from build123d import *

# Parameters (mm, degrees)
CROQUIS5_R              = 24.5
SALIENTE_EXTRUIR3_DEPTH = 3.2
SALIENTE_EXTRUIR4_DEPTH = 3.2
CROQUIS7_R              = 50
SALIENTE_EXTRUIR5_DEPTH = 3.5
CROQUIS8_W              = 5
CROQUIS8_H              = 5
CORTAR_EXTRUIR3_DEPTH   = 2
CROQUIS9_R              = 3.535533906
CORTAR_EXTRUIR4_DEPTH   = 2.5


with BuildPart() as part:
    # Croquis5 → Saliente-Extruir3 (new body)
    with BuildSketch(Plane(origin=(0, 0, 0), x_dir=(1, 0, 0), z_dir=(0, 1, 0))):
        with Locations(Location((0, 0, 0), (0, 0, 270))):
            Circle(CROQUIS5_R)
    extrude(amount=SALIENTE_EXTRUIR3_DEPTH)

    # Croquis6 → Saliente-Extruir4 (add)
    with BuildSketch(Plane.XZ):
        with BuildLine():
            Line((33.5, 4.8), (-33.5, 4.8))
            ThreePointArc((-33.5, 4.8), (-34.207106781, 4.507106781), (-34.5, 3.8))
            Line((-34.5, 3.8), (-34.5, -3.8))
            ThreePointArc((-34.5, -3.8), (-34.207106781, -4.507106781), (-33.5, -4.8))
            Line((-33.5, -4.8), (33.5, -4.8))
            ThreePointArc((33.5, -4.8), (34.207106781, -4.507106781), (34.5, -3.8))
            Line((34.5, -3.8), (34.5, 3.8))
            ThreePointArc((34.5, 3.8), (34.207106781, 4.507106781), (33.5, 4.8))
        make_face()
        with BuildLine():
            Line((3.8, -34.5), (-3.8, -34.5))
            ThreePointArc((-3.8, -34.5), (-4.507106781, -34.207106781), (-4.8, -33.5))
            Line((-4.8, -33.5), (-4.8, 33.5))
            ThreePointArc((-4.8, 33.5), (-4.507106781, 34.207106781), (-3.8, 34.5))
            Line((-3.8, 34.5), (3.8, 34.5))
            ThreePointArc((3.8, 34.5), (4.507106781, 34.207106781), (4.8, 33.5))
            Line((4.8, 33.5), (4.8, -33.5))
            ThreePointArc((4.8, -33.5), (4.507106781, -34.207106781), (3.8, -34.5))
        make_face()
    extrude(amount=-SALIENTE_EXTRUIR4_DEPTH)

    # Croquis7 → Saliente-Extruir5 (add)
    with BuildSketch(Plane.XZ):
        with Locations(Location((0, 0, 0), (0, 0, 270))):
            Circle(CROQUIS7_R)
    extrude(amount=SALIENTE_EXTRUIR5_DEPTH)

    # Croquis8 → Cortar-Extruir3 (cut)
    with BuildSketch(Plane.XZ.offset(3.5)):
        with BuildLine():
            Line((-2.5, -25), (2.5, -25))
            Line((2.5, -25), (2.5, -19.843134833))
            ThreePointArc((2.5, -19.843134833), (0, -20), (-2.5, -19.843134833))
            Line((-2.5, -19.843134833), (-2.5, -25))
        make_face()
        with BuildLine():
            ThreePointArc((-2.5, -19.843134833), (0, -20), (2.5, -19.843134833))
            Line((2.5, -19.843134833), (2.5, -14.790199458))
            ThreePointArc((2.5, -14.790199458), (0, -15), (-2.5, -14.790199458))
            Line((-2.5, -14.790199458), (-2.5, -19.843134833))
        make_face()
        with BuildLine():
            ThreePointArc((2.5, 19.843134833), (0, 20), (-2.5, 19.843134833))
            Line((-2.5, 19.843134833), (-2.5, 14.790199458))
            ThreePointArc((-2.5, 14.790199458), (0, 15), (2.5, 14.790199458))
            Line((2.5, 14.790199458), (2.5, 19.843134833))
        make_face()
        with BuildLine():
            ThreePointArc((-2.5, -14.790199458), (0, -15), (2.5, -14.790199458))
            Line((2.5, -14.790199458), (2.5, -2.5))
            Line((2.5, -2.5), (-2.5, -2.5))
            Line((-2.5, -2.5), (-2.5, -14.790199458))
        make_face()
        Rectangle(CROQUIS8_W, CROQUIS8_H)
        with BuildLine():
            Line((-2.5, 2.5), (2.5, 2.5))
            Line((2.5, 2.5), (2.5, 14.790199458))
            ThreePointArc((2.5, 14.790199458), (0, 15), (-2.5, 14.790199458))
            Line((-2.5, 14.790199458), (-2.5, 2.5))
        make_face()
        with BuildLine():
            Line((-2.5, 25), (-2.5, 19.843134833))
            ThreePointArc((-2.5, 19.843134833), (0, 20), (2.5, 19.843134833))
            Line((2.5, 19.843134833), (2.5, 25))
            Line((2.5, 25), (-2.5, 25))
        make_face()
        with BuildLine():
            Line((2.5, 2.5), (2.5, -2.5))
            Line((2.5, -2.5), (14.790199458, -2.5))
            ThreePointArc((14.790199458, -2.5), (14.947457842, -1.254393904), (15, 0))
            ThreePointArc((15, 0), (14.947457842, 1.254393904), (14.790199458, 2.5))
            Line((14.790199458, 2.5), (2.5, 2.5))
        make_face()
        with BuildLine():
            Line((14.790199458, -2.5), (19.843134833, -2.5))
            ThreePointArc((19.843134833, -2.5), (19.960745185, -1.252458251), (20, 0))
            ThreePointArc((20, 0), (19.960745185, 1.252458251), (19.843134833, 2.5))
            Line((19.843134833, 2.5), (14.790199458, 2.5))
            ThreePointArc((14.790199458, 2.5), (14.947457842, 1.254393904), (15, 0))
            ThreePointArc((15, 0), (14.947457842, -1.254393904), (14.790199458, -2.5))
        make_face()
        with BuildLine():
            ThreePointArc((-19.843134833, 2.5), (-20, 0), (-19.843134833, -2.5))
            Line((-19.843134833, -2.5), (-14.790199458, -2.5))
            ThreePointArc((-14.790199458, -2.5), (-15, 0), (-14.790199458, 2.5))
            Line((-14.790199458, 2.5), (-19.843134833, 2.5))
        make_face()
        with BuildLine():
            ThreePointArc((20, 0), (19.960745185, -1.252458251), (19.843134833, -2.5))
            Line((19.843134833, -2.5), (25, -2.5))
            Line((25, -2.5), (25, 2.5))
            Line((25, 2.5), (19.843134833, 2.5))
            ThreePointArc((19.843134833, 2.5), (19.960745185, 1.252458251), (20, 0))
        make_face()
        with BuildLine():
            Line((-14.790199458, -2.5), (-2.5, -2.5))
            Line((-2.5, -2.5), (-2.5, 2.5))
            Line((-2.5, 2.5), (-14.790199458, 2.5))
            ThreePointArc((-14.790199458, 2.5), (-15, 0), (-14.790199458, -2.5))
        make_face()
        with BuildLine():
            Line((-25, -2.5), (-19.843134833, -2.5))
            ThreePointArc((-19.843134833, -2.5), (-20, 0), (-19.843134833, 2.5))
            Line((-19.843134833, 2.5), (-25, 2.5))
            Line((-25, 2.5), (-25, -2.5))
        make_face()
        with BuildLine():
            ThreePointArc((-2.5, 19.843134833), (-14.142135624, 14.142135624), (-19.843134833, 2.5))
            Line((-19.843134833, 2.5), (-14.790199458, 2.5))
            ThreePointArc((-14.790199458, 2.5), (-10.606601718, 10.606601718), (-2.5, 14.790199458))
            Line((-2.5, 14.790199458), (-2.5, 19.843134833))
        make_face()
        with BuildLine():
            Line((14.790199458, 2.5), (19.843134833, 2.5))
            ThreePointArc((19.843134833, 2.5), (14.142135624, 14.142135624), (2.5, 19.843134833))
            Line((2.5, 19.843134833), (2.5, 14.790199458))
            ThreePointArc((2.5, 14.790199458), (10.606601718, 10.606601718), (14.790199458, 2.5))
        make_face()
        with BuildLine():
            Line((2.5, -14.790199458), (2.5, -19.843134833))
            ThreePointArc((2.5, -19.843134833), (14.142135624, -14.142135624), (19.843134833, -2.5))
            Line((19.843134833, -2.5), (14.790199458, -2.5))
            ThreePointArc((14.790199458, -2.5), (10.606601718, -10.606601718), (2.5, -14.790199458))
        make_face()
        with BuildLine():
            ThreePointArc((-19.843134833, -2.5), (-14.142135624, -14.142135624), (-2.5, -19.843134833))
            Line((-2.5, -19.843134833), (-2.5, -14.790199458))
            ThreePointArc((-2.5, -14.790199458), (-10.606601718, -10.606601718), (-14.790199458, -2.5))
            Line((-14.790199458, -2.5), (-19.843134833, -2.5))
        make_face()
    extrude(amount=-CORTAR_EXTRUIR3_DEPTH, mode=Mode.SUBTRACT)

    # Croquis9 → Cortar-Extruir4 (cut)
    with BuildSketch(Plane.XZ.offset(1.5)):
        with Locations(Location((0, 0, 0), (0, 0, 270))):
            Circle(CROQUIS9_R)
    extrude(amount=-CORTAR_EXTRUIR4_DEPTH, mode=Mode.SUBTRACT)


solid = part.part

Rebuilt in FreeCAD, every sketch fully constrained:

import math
import FreeCAD as App
import Part
import Sketcher
Q = App.Units.Quantity

doc = App.newDocument("Part")
body = doc.addObject("PartDesign::Body", "Body")

sketch1 = body.newObject("Sketcher::SketchObject", "Sketch")
sketch1.AttachmentSupport = (doc.getObject("XZ_Plane"), [""])
sketch1.MapMode = "FlatFace"
sketch1.addGeometry(Part.Circle(App.Vector(0, 0, 0), App.Vector(0, 0, 1), 24.5), False)
sketch1.addConstraint(Sketcher.Constraint("Coincident", 0, 3, -1, 1))
sketch1.addConstraint(Sketcher.Constraint("Diameter", 0, Q("49 mm")))
pad1 = body.newObject("PartDesign::Pad", "Pad")
pad1.Profile = sketch1
pad1.Length = 3.2
pad1.Reversed = True

sketch2 = body.newObject("Sketcher::SketchObject", "Sketch001")
sketch2.AttachmentSupport = (doc.getObject("XZ_Plane"), [""])
sketch2.MapMode = "FlatFace"
sketch2.addGeometry(Part.ArcOfCircle(Part.Circle(App.Vector(33.5, 3.8, 0), App.Vector(0, 0, 1), 1), math.radians(0), math.radians(90)), False)
sketch2.addGeometry(Part.LineSegment(App.Vector(33.5, 4.8, 0), App.Vector(4.8, 4.8, 0)), False)
sketch2.addGeometry(Part.LineSegment(App.Vector(4.8, 4.8, 0), App.Vector(4.8, 33.5, 0)), False)
sketch2.addGeometry(Part.ArcOfCircle(Part.Circle(App.Vector(3.8, 33.5, 0), App.Vector(0, 0, 1), 1), math.radians(0), math.radians(90)), False)
sketch2.addGeometry(Part.LineSegment(App.Vector(3.8, 34.5, 0), App.Vector(-3.8, 34.5, 0)), False)
sketch2.addGeometry(Part.ArcOfCircle(Part.Circle(App.Vector(-3.8, 33.5, 0), App.Vector(0, 0, 1), 1), math.radians(90), math.radians(180)), False)
sketch2.addGeometry(Part.LineSegment(App.Vector(-4.8, 33.5, 0), App.Vector(-4.8, 4.8, 0)), False)
sketch2.addGeometry(Part.LineSegment(App.Vector(-4.8, 4.8, 0), App.Vector(-33.5, 4.8, 0)), False)
sketch2.addGeometry(Part.ArcOfCircle(Part.Circle(App.Vector(-33.5, 3.8, 0), App.Vector(0, 0, 1), 1), math.radians(90), math.radians(180)), False)
sketch2.addGeometry(Part.LineSegment(App.Vector(-34.5, 3.8, 0), App.Vector(-34.5, -3.8, 0)), False)
sketch2.addGeometry(Part.ArcOfCircle(Part.Circle(App.Vector(-33.5, -3.8, 0), App.Vector(0, 0, 1), 1), math.radians(-180), math.radians(-90)), False)
sketch2.addGeometry(Part.LineSegment(App.Vector(-33.5, -4.8, 0), App.Vector(-4.8, -4.8, 0)), False)
sketch2.addGeometry(Part.LineSegment(App.Vector(-4.8, -4.8, 0), App.Vector(-4.8, -33.5, 0)), False)
sketch2.addGeometry(Part.ArcOfCircle(Part.Circle(App.Vector(-3.8, -33.5, 0), App.Vector(0, 0, 1), 1), math.radians(-180), math.radians(-90)), False)
sketch2.addGeometry(Part.LineSegment(App.Vector(-3.8, -34.5, 0), App.Vector(3.8, -34.5, 0)), False)
sketch2.addGeometry(Part.ArcOfCircle(Part.Circle(App.Vector(3.8, -33.5, 0), App.Vector(0, 0, 1), 1), math.radians(-90), math.radians(0)), False)
sketch2.addGeometry(Part.LineSegment(App.Vector(4.8, -33.5, 0), App.Vector(4.8, -4.8, 0)), False)
sketch2.addGeometry(Part.LineSegment(App.Vector(4.8, -4.8, 0), App.Vector(33.5, -4.8, 0)), False)
sketch2.addGeometry(Part.ArcOfCircle(Part.Circle(App.Vector(33.5, -3.8, 0), App.Vector(0, 0, 1), 1), math.radians(-90), math.radians(0)), False)
sketch2.addGeometry(Part.LineSegment(App.Vector(34.5, -3.8, 0), App.Vector(34.5, 3.8, 0)), False)
sketch2.addConstraint(Sketcher.Constraint("Tangent", 0, 2, 1, 1))
sketch2.addConstraint(Sketcher.Constraint("Coincident", 1, 2, 2, 1))
sketch2.addConstraint(Sketcher.Constraint("Tangent", 2, 2, 3, 1))
sketch2.addConstraint(Sketcher.Constraint("Tangent", 3, 2, 4, 1))
sketch2.addConstraint(Sketcher.Constraint("Tangent", 4, 2, 5, 1))
sketch2.addConstraint(Sketcher.Constraint("Tangent", 5, 2, 6, 1))
sketch2.addConstraint(Sketcher.Constraint("Coincident", 6, 2, 7, 1))
sketch2.addConstraint(Sketcher.Constraint("Tangent", 7, 2, 8, 1))
sketch2.addConstraint(Sketcher.Constraint("Tangent", 8, 2, 9, 1))
sketch2.addConstraint(Sketcher.Constraint("Tangent", 9, 2, 10, 1))
sketch2.addConstraint(Sketcher.Constraint("Tangent", 10, 2, 11, 1))
sketch2.addConstraint(Sketcher.Constraint("Coincident", 11, 2, 12, 1))
sketch2.addConstraint(Sketcher.Constraint("Tangent", 12, 2, 13, 1))
sketch2.addConstraint(Sketcher.Constraint("Tangent", 13, 2, 14, 1))
sketch2.addConstraint(Sketcher.Constraint("Tangent", 14, 2, 15, 1))
sketch2.addConstraint(Sketcher.Constraint("Tangent", 15, 2, 16, 1))
sketch2.addConstraint(Sketcher.Constraint("Coincident", 16, 2, 17, 1))
sketch2.addConstraint(Sketcher.Constraint("Tangent", 17, 2, 18, 1))
sketch2.addConstraint(Sketcher.Constraint("Tangent", 18, 2, 19, 1))
sketch2.addConstraint(Sketcher.Constraint("Tangent", 19, 2, 0, 1))
sketch2.addConstraint(Sketcher.Constraint("Horizontal", 1))
sketch2.addConstraint(Sketcher.Constraint("Vertical", 2))
sketch2.addConstraint(Sketcher.Constraint("Horizontal", 4))
sketch2.addConstraint(Sketcher.Constraint("Vertical", 6))
sketch2.addConstraint(Sketcher.Constraint("Horizontal", 7))
sketch2.addConstraint(Sketcher.Constraint("Vertical", 9))
sketch2.addConstraint(Sketcher.Constraint("Horizontal", 11))
sketch2.addConstraint(Sketcher.Constraint("Vertical", 12))
sketch2.addConstraint(Sketcher.Constraint("Horizontal", 14))
sketch2.addConstraint(Sketcher.Constraint("Vertical", 16))
sketch2.addConstraint(Sketcher.Constraint("Horizontal", 17))
sketch2.addConstraint(Sketcher.Constraint("Vertical", 19))
sketch2.addConstraint(Sketcher.Constraint("Equal", 0, 3))
sketch2.addConstraint(Sketcher.Constraint("Equal", 3, 5))
sketch2.addConstraint(Sketcher.Constraint("Equal", 5, 8))
sketch2.addConstraint(Sketcher.Constraint("Equal", 8, 10))
sketch2.addConstraint(Sketcher.Constraint("Equal", 10, 13))
sketch2.addConstraint(Sketcher.Constraint("Equal", 13, 15))
sketch2.addConstraint(Sketcher.Constraint("Equal", 15, 18))
sketch2.addConstraint(Sketcher.Constraint("Symmetric", 0, 3, 10, 3, -1, 1))
sketch2.addConstraint(Sketcher.Constraint("Symmetric", 3, 3, 13, 3, -1, 1))
sketch2.addConstraint(Sketcher.Constraint("Symmetric", 6, 2, 16, 2, -1, 1))
sketch2.addConstraint(Sketcher.Constraint("Symmetric", 1, 2, 6, 2, -2))
sketch2.addConstraint(Sketcher.Constraint("Equal", 17, 2))
sketch2.addConstraint(Sketcher.Constraint("Equal", 14, 9))
sketch2.addConstraint(Sketcher.Constraint("Radius", 0, Q("1 mm")))
sketch2.addConstraint(Sketcher.Constraint("DistanceX", 1, 2, 1, 1, Q("28.7 mm")))
sketch2.addConstraint(Sketcher.Constraint("DistanceX", 4, 2, 4, 1, Q("7.6 mm")))
pad2 = body.newObject("PartDesign::Pad", "Pad001")
pad2.Profile = sketch2
pad2.Length = 3.2
pad2.Reversed = True

sketch3 = body.newObject("Sketcher::SketchObject", "Sketch002")
sketch3.AttachmentSupport = (doc.getObject("XZ_Plane"), [""])
sketch3.MapMode = "FlatFace"
sketch3.addGeometry(Part.Circle(App.Vector(0, 0, 0), App.Vector(0, 0, 1), 50), False)
sketch3.addConstraint(Sketcher.Constraint("Coincident", 0, 3, -1, 1))
sketch3.addConstraint(Sketcher.Constraint("Diameter", 0, Q("100 mm")))
pad3 = body.newObject("PartDesign::Pad", "Pad002")
pad3.Profile = sketch3
pad3.Length = 3.5

sketch4 = body.newObject("Sketcher::SketchObject", "Sketch003")
sketch4.AttachmentSupport = (doc.getObject("XZ_Plane"), [""])
sketch4.MapMode = "FlatFace"
sketch4.AttachmentOffset = App.Placement(App.Vector(0, 0, 3.5), App.Rotation())
sketch4.addGeometry(Part.LineSegment(App.Vector(-2.5, -19.843135, 0), App.Vector(-2.5, -25, 0)), False)
sketch4.addGeometry(Part.LineSegment(App.Vector(-2.5, -25, 0), App.Vector(2.5, -25, 0)), False)
sketch4.addGeometry(Part.LineSegment(App.Vector(2.5, -25, 0), App.Vector(2.5, -19.843135, 0)), False)
sketch4.addGeometry(Part.ArcOfCircle(Part.Circle(App.Vector(0, 0, 0), App.Vector(0, 0, 1), 20), math.radians(-82.819244), math.radians(-7.180756)), False)
sketch4.addGeometry(Part.LineSegment(App.Vector(19.843135, -2.5, 0), App.Vector(25, -2.5, 0)), False)
sketch4.addGeometry(Part.LineSegment(App.Vector(25, -2.5, 0), App.Vector(25, 2.5, 0)), False)
sketch4.addGeometry(Part.LineSegment(App.Vector(25, 2.5, 0), App.Vector(19.843135, 2.5, 0)), False)
sketch4.addGeometry(Part.ArcOfCircle(Part.Circle(App.Vector(0, 0, 0), App.Vector(0, 0, 1), 20), math.radians(7.180756), math.radians(82.819244)), False)
sketch4.addGeometry(Part.LineSegment(App.Vector(2.5, 19.843135, 0), App.Vector(2.5, 25, 0)), False)
sketch4.addGeometry(Part.LineSegment(App.Vector(2.5, 25, 0), App.Vector(-2.5, 25, 0)), False)
sketch4.addGeometry(Part.LineSegment(App.Vector(-2.5, 25, 0), App.Vector(-2.5, 19.843135, 0)), False)
sketch4.addGeometry(Part.ArcOfCircle(Part.Circle(App.Vector(0, 0, 0), App.Vector(0, 0, 1), 20), math.radians(97.180756), math.radians(172.819244)), False)
sketch4.addGeometry(Part.LineSegment(App.Vector(-19.843135, 2.5, 0), App.Vector(-25, 2.5, 0)), False)
sketch4.addGeometry(Part.LineSegment(App.Vector(-25, 2.5, 0), App.Vector(-25, -2.5, 0)), False)
sketch4.addGeometry(Part.LineSegment(App.Vector(-25, -2.5, 0), App.Vector(-19.843135, -2.5, 0)), False)
sketch4.addGeometry(Part.ArcOfCircle(Part.Circle(App.Vector(0, 0, 0), App.Vector(0, 0, 1), 20), math.radians(-172.819244), math.radians(-97.180756)), False)
sketch4.addGeometry(Part.LineSegment(App.Vector(-2.5, -2.5, 0), App.Vector(-2.5, -14.790199, 0)), False)
sketch4.addGeometry(Part.ArcOfCircle(Part.Circle(App.Vector(0, 0, 0), App.Vector(0, 0, 1), 15), math.radians(-170.405932), math.radians(-99.594068)), False)
sketch4.addGeometry(Part.LineSegment(App.Vector(-14.790199, -2.5, 0), App.Vector(-2.5, -2.5, 0)), False)
sketch4.addGeometry(Part.LineSegment(App.Vector(2.5, -14.790199, 0), App.Vector(2.5, -2.5, 0)), False)
sketch4.addGeometry(Part.LineSegment(App.Vector(2.5, -2.5, 0), App.Vector(14.790199, -2.5, 0)), False)
sketch4.addGeometry(Part.ArcOfCircle(Part.Circle(App.Vector(0, 0, 0), App.Vector(0, 0, 1), 15), math.radians(-80.405932), math.radians(-9.594068)), False)
sketch4.addGeometry(Part.LineSegment(App.Vector(14.790199, 2.5, 0), App.Vector(2.5, 2.5, 0)), False)
sketch4.addGeometry(Part.LineSegment(App.Vector(2.5, 2.5, 0), App.Vector(2.5, 14.790199, 0)), False)
sketch4.addGeometry(Part.ArcOfCircle(Part.Circle(App.Vector(0, 0, 0), App.Vector(0, 0, 1), 15), math.radians(9.594068), math.radians(80.405932)), False)
sketch4.addGeometry(Part.LineSegment(App.Vector(-2.5, 14.790199, 0), App.Vector(-2.5, 2.5, 0)), False)
sketch4.addGeometry(Part.LineSegment(App.Vector(-2.5, 2.5, 0), App.Vector(-14.790199, 2.5, 0)), False)
sketch4.addGeometry(Part.ArcOfCircle(Part.Circle(App.Vector(0, 0, 0), App.Vector(0, 0, 1), 15), math.radians(99.594068), math.radians(170.405932)), False)
sketch4.addConstraint(Sketcher.Constraint("Coincident", 0, 2, 1, 1))
sketch4.addConstraint(Sketcher.Constraint("Coincident", 1, 2, 2, 1))
sketch4.addConstraint(Sketcher.Constraint("Coincident", 2, 2, 3, 1))
sketch4.addConstraint(Sketcher.Constraint("Coincident", 3, 2, 4, 1))
sketch4.addConstraint(Sketcher.Constraint("Coincident", 4, 2, 5, 1))
sketch4.addConstraint(Sketcher.Constraint("Coincident", 5, 2, 6, 1))
sketch4.addConstraint(Sketcher.Constraint("Coincident", 6, 2, 7, 1))
sketch4.addConstraint(Sketcher.Constraint("Coincident", 7, 2, 8, 1))
sketch4.addConstraint(Sketcher.Constraint("Coincident", 8, 2, 9, 1))
sketch4.addConstraint(Sketcher.Constraint("Coincident", 9, 2, 10, 1))
sketch4.addConstraint(Sketcher.Constraint("Coincident", 10, 2, 11, 1))
sketch4.addConstraint(Sketcher.Constraint("Coincident", 11, 2, 12, 1))
sketch4.addConstraint(Sketcher.Constraint("Coincident", 12, 2, 13, 1))
sketch4.addConstraint(Sketcher.Constraint("Coincident", 13, 2, 14, 1))
sketch4.addConstraint(Sketcher.Constraint("Coincident", 14, 2, 15, 1))
sketch4.addConstraint(Sketcher.Constraint("Coincident", 15, 2, 0, 1))
sketch4.addConstraint(Sketcher.Constraint("Coincident", 16, 2, 17, 2))
sketch4.addConstraint(Sketcher.Constraint("Coincident", 17, 1, 18, 1))
sketch4.addConstraint(Sketcher.Constraint("Coincident", 18, 2, 16, 1))
sketch4.addConstraint(Sketcher.Constraint("Coincident", 19, 2, 20, 1))
sketch4.addConstraint(Sketcher.Constraint("Coincident", 20, 2, 21, 2))
sketch4.addConstraint(Sketcher.Constraint("Coincident", 21, 1, 19, 1))
sketch4.addConstraint(Sketcher.Constraint("Coincident", 22, 2, 23, 1))
sketch4.addConstraint(Sketcher.Constraint("Coincident", 23, 2, 24, 2))
sketch4.addConstraint(Sketcher.Constraint("Coincident", 24, 1, 22, 1))
sketch4.addConstraint(Sketcher.Constraint("Coincident", 25, 2, 26, 1))
sketch4.addConstraint(Sketcher.Constraint("Coincident", 26, 2, 27, 2))
sketch4.addConstraint(Sketcher.Constraint("Coincident", 27, 1, 25, 1))
sketch4.addConstraint(Sketcher.Constraint("Vertical", 0))
sketch4.addConstraint(Sketcher.Constraint("Horizontal", 1))
sketch4.addConstraint(Sketcher.Constraint("Vertical", 2))
sketch4.addConstraint(Sketcher.Constraint("Horizontal", 4))
sketch4.addConstraint(Sketcher.Constraint("Vertical", 5))
sketch4.addConstraint(Sketcher.Constraint("Horizontal", 6))
sketch4.addConstraint(Sketcher.Constraint("Vertical", 8))
sketch4.addConstraint(Sketcher.Constraint("Horizontal", 9))
sketch4.addConstraint(Sketcher.Constraint("Vertical", 10))
sketch4.addConstraint(Sketcher.Constraint("Horizontal", 12))
sketch4.addConstraint(Sketcher.Constraint("Vertical", 13))
sketch4.addConstraint(Sketcher.Constraint("Horizontal", 14))
sketch4.addConstraint(Sketcher.Constraint("Vertical", 16))
sketch4.addConstraint(Sketcher.Constraint("Horizontal", 18))
sketch4.addConstraint(Sketcher.Constraint("Vertical", 19))
sketch4.addConstraint(Sketcher.Constraint("Horizontal", 20))
sketch4.addConstraint(Sketcher.Constraint("Horizontal", 22))
sketch4.addConstraint(Sketcher.Constraint("Vertical", 23))
sketch4.addConstraint(Sketcher.Constraint("Vertical", 25))
sketch4.addConstraint(Sketcher.Constraint("Horizontal", 26))
sketch4.addConstraint(Sketcher.Constraint("Coincident", 3, 3, -1, 1))
sketch4.addConstraint(Sketcher.Constraint("Coincident", 7, 3, -1, 1))
sketch4.addConstraint(Sketcher.Constraint("Coincident", 11, 3, -1, 1))
sketch4.addConstraint(Sketcher.Constraint("Coincident", 15, 3, -1, 1))
sketch4.addConstraint(Sketcher.Constraint("Coincident", 17, 3, -1, 1))
sketch4.addConstraint(Sketcher.Constraint("Coincident", 21, 3, -1, 1))
sketch4.addConstraint(Sketcher.Constraint("Coincident", 24, 3, -1, 1))
sketch4.addConstraint(Sketcher.Constraint("Coincident", 27, 3, -1, 1))
sketch4.addConstraint(Sketcher.Constraint("Equal", 3, 7))
sketch4.addConstraint(Sketcher.Constraint("Equal", 7, 11))
sketch4.addConstraint(Sketcher.Constraint("Equal", 11, 15))
sketch4.addConstraint(Sketcher.Constraint("Equal", 17, 21))
sketch4.addConstraint(Sketcher.Constraint("Equal", 21, 24))
sketch4.addConstraint(Sketcher.Constraint("Equal", 24, 27))
sketch4.addConstraint(Sketcher.Constraint("Symmetric", 0, 2, 8, 2, -1, 1))
sketch4.addConstraint(Sketcher.Constraint("Symmetric", 4, 2, 12, 2, -1, 1))
sketch4.addConstraint(Sketcher.Constraint("Symmetric", 18, 2, 22, 2, -1, 1))
sketch4.addConstraint(Sketcher.Constraint("Symmetric", 19, 2, 25, 2, -1, 1))
sketch4.addConstraint(Sketcher.Constraint("Symmetric", 18, 2, 19, 2, -2))
sketch4.addConstraint(Sketcher.Constraint("Horizontal", 7, 2, 10, 2))
sketch4.addConstraint(Sketcher.Constraint("Horizontal", 6, 2, 11, 2))
sketch4.addConstraint(Sketcher.Constraint("Horizontal", 4, 2, 13, 2))
sketch4.addConstraint(Sketcher.Constraint("Horizontal", 2, 2, 15, 2))
sketch4.addConstraint(Sketcher.Constraint("Horizontal", 14, 2, 17, 1))
sketch4.addConstraint(Sketcher.Constraint("Vertical", 15, 2, 16, 2))
sketch4.addConstraint(Sketcher.Constraint("Equal", 14, 0))
sketch4.addConstraint(Sketcher.Constraint("Equal", 9, 5))
sketch4.addConstraint(Sketcher.Constraint("Radius", 3, Q("20 mm")))
sketch4.addConstraint(Sketcher.Constraint("Radius", 17, Q("15 mm")))
sketch4.addConstraint(Sketcher.Constraint("DistanceX", 1, 1, 1, 2, Q("5 mm")))
sketch4.addConstraint(Sketcher.Constraint("DistanceY", 0, 2, -1, 1, Q("25 mm")))
pocket1 = body.newObject("PartDesign::Pocket", "Pocket")
pocket1.Profile = sketch4
pocket1.Length = 2

sketch5 = body.newObject("Sketcher::SketchObject", "Sketch004")
sketch5.AttachmentSupport = (doc.getObject("XZ_Plane"), [""])
sketch5.MapMode = "FlatFace"
sketch5.AttachmentOffset = App.Placement(App.Vector(0, 0, 1.5), App.Rotation())
sketch5.addGeometry(Part.Circle(App.Vector(0, 0, 0), App.Vector(0, 0, 1), 3.535534), False)
sketch5.addConstraint(Sketcher.Constraint("Coincident", 0, 3, -1, 1))
sketch5.addConstraint(Sketcher.Constraint("Diameter", 0, Q("7.071068 mm")))
pocket2 = body.newObject("PartDesign::Pocket", "Pocket001")
pocket2.Profile = sketch5
pocket2.Length = 2.5

doc.recompute()
